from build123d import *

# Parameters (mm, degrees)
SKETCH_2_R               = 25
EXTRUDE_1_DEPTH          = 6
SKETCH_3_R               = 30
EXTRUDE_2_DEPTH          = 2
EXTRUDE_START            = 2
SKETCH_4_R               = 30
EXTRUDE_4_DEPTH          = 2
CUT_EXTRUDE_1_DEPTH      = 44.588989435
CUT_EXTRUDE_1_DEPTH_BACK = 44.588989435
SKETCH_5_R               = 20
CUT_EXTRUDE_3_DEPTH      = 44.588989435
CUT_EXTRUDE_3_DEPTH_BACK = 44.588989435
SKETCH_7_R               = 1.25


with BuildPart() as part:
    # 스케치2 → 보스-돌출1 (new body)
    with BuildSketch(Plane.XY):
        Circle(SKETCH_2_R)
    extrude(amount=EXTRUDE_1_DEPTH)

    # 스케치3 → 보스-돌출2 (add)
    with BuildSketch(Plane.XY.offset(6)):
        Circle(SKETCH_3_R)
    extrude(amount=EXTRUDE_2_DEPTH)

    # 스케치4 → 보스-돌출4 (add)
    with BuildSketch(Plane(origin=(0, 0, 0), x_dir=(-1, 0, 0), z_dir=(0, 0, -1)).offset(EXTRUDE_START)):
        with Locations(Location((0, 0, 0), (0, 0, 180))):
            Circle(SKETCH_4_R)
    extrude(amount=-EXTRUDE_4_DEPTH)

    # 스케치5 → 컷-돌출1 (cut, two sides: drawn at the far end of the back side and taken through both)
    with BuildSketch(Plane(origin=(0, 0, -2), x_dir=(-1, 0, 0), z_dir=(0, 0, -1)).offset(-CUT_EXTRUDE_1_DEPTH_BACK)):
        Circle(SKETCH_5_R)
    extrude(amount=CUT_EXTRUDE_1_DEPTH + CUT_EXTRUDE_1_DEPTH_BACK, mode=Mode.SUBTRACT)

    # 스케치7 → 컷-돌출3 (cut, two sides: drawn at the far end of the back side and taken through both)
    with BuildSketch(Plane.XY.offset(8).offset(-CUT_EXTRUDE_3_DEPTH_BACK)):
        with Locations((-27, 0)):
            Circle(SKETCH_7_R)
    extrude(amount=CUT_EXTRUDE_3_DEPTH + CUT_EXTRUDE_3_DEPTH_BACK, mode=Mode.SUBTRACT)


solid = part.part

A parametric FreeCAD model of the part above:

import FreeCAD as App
import Part
import Sketcher
from FreeCAD import Vector

doc = App.newDocument("Part")
body = doc.addObject("PartDesign::Body", "Body")

sketch1 = doc.addObject("Sketcher::SketchObject", "Sketch")
body.addObject(sketch1)
sketch1.AttachmentSupport = (doc.XY_Plane, [""])
sketch1.MapMode = "FlatFace"
sketch1.addGeometry(Part.Circle(Vector(0, 0, 0), Vector(0, 0, 1), 25), False)
sketch1.addConstraint(Sketcher.Constraint("Coincident", 0, 3, -1, 1))
sketch1.addConstraint(Sketcher.Constraint("Diameter", 0, 50.0))
pad1 = doc.addObject("PartDesign::Pad", "Pad")
body.addObject(pad1)
pad1.Profile = sketch1
pad1.Length = 6

sketch2 = doc.addObject("Sketcher::SketchObject", "Sketch001")
body.addObject(sketch2)
sketch2.AttachmentSupport = (doc.XY_Plane, [""])
sketch2.MapMode = "FlatFace"
sketch2.AttachmentOffset = App.Placement(Vector(0, 0, 6), App.Rotation())
sketch2.addGeometry(Part.Circle(Vector(0, 0, 0), Vector(0, 0, 1), 30), False)
sketch2.addConstraint(Sketcher.Constraint("Coincident", 0, 3, -1, 1))
sketch2.addConstraint(Sketcher.Constraint("Diameter", 0, 60.0))
pad2 = doc.addObject("PartDesign::Pad", "Pad001")
body.addObject(pad2)
pad2.Profile = sketch2
pad2.Length = 2

sketch3 = doc.addObject("Sketcher::SketchObject", "Sketch002")
body.addObject(sketch3)
sketch3.AttachmentSupport = (doc.XY_Plane, [""])
sketch3.MapMode = "FlatFace"
sketch3.AttachmentOffset = App.Placement(Vector(0, 0, -2), App.Rotation())
sketch3.addGeometry(Part.Circle(Vector(0, 0, 0), Vector(0, 0, 1), 30), False)
sketch3.addConstraint(Sketcher.Constraint("Coincident", 0, 3, -1, 1))
sketch3.addConstraint(Sketcher.Constraint("Diameter", 0, 60.0))
pad3 = doc.addObject("PartDesign::Pad", "Pad002")
body.addObject(pad3)
pad3.Profile = sketch3
pad3.Length = 2

sketch4 = doc.addObject("Sketcher::SketchObject", "Sketch003")
body.addObject(sketch4)
sketch4.AttachmentSupport = (doc.XY_Plane, [""])
sketch4.MapMode = "FlatFace"
sketch4.AttachmentOffset = App.Placement(Vector(0, 0, -2), App.Rotation())
sketch4.addGeometry(Part.Circle(Vector(0, 0, 0), Vector(0, 0, 1), 20), False)
sketch4.addConstraint(Sketcher.Constraint("Coincident", 0, 3, -1, 1))
sketch4.addConstraint(Sketcher.Constraint("Diameter", 0, 40.0))
pocket1 = doc.addObject("PartDesign::Pocket", "Pocket")
body.addObject(pocket1)
pocket1.Profile = sketch4
pocket1.Type = "ThroughAll"
pocket1.Midplane = True

sketch5 = doc.addObject("Sketcher::SketchObject", "Sketch004")
body.addObject(sketch5)
sketch5.AttachmentSupport = (doc.XY_Plane, [""])
sketch5.MapMode = "FlatFace"
sketch5.AttachmentOffset = App.Placement(Vector(0, 0, 8), App.Rotation())
sketch5.addGeometry(Part.Circle(Vector(-27, 0, 0), Vector(0, 0, 1), 1.2), False)
sketch5.addConstraint(Sketcher.Constraint("PointOnObject", 0, 3, -1))
sketch5.addConstraint(Sketcher.Constraint("Diameter", 0, 2.5))
sketch5.addConstraint(Sketcher.Constraint("DistanceX", 0, 3, -1, 1, 27.0))
pocket2 = doc.addObject("PartDesign::Pocket", "Pocket001")
body.addObject(pocket2)
pocket2.Profile = sketch5
pocket2.Type = "ThroughAll"
pocket2.Midplane = True

doc.recompute()
